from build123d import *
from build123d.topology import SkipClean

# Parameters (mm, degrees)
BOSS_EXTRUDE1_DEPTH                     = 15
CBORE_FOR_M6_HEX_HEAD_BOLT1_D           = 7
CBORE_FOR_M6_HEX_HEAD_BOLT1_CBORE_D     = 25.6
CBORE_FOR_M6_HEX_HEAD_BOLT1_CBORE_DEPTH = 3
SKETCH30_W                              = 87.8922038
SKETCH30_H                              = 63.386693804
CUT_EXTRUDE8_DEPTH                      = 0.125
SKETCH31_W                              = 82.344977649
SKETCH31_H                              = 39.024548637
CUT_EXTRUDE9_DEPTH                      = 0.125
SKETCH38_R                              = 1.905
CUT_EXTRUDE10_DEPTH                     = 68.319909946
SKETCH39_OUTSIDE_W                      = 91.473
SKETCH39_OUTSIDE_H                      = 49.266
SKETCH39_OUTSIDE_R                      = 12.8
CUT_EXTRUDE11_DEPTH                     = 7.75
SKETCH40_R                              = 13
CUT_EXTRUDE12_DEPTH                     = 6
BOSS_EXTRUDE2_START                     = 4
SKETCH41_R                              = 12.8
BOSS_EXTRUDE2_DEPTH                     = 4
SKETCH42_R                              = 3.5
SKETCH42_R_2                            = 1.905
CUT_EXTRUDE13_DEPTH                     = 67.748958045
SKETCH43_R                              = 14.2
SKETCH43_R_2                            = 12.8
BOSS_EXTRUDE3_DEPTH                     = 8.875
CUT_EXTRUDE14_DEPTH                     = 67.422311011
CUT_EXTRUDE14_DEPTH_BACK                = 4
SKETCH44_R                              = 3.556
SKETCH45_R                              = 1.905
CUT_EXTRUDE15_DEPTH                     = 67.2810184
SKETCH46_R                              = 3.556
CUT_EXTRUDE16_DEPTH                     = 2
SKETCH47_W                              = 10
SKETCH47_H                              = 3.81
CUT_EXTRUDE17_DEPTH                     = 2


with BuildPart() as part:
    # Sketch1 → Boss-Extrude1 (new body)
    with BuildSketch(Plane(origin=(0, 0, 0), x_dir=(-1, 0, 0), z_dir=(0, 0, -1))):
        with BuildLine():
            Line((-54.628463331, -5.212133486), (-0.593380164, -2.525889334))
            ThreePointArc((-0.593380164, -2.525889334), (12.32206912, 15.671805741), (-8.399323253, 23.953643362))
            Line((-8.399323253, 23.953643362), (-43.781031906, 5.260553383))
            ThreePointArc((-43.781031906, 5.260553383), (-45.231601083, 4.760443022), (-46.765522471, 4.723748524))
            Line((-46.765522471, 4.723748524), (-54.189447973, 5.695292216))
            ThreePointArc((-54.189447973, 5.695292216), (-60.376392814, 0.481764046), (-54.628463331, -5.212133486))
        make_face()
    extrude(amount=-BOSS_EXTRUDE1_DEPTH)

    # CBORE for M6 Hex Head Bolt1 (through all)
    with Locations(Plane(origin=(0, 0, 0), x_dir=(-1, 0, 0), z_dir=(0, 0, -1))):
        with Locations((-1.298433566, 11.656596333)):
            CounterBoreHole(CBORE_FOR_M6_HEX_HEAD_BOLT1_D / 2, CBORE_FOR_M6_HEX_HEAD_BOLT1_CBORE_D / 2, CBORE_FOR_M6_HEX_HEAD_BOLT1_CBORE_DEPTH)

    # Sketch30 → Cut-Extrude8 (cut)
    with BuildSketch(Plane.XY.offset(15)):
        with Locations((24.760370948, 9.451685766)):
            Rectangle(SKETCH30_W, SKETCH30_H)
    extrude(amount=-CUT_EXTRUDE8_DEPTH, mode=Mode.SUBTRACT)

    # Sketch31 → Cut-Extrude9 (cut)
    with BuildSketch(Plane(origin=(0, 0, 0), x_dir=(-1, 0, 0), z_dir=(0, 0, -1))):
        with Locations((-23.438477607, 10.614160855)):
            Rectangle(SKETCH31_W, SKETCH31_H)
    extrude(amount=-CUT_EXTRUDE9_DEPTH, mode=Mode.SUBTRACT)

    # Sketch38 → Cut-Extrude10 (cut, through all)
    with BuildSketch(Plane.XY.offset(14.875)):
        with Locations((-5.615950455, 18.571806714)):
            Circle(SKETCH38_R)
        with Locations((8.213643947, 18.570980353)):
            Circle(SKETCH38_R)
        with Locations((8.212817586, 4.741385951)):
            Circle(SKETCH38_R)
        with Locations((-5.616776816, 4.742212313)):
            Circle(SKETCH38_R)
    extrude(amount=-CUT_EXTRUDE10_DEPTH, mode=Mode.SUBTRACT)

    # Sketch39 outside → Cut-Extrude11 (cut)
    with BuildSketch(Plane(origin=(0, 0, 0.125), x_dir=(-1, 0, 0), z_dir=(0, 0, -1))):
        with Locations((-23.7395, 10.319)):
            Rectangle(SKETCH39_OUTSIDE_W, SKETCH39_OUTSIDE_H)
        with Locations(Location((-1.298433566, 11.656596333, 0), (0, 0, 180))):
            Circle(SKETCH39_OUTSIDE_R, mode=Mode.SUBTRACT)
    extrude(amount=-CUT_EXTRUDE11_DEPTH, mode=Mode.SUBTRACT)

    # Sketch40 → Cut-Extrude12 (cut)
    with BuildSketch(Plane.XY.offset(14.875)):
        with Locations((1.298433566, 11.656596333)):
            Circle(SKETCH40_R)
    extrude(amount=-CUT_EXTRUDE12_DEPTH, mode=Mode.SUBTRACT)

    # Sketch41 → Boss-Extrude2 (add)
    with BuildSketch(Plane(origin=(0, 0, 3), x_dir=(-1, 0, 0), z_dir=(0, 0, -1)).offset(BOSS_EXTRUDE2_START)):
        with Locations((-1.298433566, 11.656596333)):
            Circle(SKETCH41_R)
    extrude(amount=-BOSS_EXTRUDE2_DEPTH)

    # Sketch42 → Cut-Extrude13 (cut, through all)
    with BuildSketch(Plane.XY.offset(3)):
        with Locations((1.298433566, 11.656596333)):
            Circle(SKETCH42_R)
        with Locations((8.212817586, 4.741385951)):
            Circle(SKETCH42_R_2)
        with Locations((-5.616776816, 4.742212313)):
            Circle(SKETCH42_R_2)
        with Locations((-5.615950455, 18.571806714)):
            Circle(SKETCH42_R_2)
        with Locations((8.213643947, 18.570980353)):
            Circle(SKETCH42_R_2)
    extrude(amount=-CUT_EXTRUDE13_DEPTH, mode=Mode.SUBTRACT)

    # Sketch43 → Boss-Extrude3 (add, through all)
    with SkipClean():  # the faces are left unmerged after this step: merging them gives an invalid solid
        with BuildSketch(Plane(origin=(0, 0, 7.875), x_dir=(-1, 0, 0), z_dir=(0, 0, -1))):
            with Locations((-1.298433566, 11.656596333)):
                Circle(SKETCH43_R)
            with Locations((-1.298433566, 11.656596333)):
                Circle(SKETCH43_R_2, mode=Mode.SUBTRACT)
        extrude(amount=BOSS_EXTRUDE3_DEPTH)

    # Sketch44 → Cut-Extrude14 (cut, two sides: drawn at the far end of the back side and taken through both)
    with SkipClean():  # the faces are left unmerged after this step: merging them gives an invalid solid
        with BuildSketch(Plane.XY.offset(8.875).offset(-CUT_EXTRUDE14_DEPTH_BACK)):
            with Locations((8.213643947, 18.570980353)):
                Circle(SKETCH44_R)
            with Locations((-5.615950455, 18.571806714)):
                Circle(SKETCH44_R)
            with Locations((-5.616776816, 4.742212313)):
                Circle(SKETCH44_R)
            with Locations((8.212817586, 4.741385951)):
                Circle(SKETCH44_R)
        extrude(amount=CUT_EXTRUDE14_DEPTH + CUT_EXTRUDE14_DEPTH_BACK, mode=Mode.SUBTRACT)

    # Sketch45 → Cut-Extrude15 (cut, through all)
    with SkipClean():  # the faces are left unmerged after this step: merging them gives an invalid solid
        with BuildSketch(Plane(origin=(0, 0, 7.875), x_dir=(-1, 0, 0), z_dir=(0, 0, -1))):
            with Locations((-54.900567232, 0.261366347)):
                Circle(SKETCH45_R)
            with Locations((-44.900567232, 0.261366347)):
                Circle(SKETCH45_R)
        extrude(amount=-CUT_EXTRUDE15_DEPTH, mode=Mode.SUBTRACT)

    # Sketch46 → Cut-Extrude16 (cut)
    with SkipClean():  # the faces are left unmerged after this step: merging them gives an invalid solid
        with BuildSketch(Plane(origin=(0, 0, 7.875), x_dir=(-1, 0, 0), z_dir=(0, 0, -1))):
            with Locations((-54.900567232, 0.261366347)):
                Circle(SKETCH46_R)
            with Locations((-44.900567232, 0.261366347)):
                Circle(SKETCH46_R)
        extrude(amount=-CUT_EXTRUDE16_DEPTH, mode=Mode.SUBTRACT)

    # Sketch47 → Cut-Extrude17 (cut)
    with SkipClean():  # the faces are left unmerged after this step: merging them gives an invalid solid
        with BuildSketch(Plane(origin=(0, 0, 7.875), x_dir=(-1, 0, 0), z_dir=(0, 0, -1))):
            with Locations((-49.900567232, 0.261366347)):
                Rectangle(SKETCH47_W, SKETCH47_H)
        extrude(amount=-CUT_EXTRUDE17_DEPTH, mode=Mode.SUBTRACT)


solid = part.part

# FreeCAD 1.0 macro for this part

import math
import FreeCAD as App
import Part
import Sketcher

V = App.Vector


def add_polygon(sketch, points):
    """Adds a closed chain of lines whose ends are joined by coincident constraints."""
    first, n = sketch.GeometryCount, len(points)
    for a, b in zip(points, points[1:] + points[:1]):
        sketch.addGeometry(Part.LineSegment(App.Vector(*a, 0), App.Vector(*b, 0)), False)
    for i in range(n):
        sketch.addConstraint(Sketcher.Constraint("Coincident", first + i, 2, first + (i + 1) % n, 1))

doc = App.newDocument("Part")
params = doc.addObject("Spreadsheet::Sheet", "Params")
for row, (alias, value) in enumerate([
    ("sketch1_radius", "5 mm"),
    ("sketch1_radius2", "14.2 mm"),
    ("pad1_length", "15 mm"),
    ("sketch2_diameter", "7 mm"),
    ("hole_diameter", "7 mm"),
    ("hole_cbore_diameter", "25.6 mm"),
    ("hole_cbore_depth", "3 mm"),
    ("pocket1_length", "0.125 mm"),
    ("pocket2_length", "0.125 mm"),
    ("sketch5_diameter", "3.81 mm"),
    ("sketch6_diameter", "25.6 mm"),
    ("pocket4_length", "7.75 mm"),
    ("sketch7_diameter", "26 mm"),
    ("pocket5_length", "6 mm"),
    ("sketch8_diameter", "25.6 mm"),
    ("pad2_length", "4 mm"),
    ("sketch9_diameter", "7 mm"),
    ("sketch9_diameter2", "3.81 mm"),
    ("sketch10_diameter", "28.4 mm"),
    ("sketch10_diameter2", "25.6 mm"),
    ("pad3_length", "8.875 mm"),
    ("pocket7_length", "67.422311 mm"),
    ("pocket7_length2", "4 mm"),
    ("sketch12_diameter", "3.81 mm"),
    ("pocket9_length", "2 mm"),
    ("sketch14_width", "10 mm"),
    ("sketch14_height", "3.81 mm"),
    ("pocket10_length", "2 mm"),
], start=1):
    params.set(f"A{row}", alias)
    params.set(f"B{row}", "=" + value)
    params.setAlias(f"B{row}", alias)

body = doc.addObject("PartDesign::Body", "Body")

# Sketch on XY plane
sketch1 = body.newObject("Sketcher::SketchObject", "Sketch")
sketch1.AttachmentSupport = (doc.getObject("XY_Plane"), [""])
sketch1.MapMode = "FlatFace"
sketch1.addGeometry([
    Part.LineSegment(V(54.628463, -5.212133, 0), V(0.59338, -2.525889, 0)),  # 0
    Part.ArcOfCircle(Part.Circle(V(1.298434, 11.656596, 0), V(0, 0, 1), 14.2), math.radians(59.995855), math.radians(267.154)),  # 1
    Part.LineSegment(V(8.399323, 23.953643, 0), V(43.781032, 5.260553, 0)),  # 2
    Part.ArcOfCircle(Part.Circle(V(46.116722, 9.681476, 0), V(0, 0, 1), 5), math.radians(-117.848675), math.radians(-82.544267)),  # 3
    Part.LineSegment(V(46.765522, 4.723749, 0), V(54.189448, 5.695292, 0)),  # 4
    Part.ArcOfCircle(Part.Circle(V(54.900567, 0.261366, 0), V(0, 0, 1), 5.480259), math.radians(-92.846), math.radians(97.455733)),  # 5
], False)
sketch1.addConstraint([
    Sketcher.Constraint("Coincident", 0, 2, 1, 2),
    Sketcher.Constraint("Coincident", 1, 1, 2, 1),
    Sketcher.Constraint("Coincident", 2, 2, 3, 1),
    Sketcher.Constraint("Coincident", 3, 2, 4, 1),
    Sketcher.Constraint("Coincident", 4, 2, 5, 2),
    Sketcher.Constraint("Coincident", 5, 1, 0, 1),
    Sketcher.Constraint("Radius", 3, 5.0),
    Sketcher.Constraint("Radius", 1, 14.2),
    Sketcher.Constraint("Radius", 5, 5.480259),
    Sketcher.Constraint("DistanceX", 1, 1, 3, 3, 37.717398),
    Sketcher.Constraint("DistanceX", 1, 3, 2, 2, 42.482598),
    Sketcher.Constraint("DistanceX", 3, 3, 3, 2, 0.648801),
    Sketcher.Constraint("DistanceY", 5, 1, 5, 3, 5.4735),
    Sketcher.Constraint("Distance", 2, 40.016208),
    Sketcher.Constraint("DistanceX", -1, 1, 3, 3, 46.116722),
    Sketcher.Constraint("DistanceX", -1, 1, 0, 2, 0.59338),
    Sketcher.Constraint("DistanceY", 0, 2, -1, 1, 2.525889),
    Sketcher.Constraint("DistanceX", -1, 1, 2, 2, 43.781032),
    Sketcher.Constraint("DistanceY", 5, 3, 3, 3, 9.420109),
    Sketcher.Constraint("DistanceX", 4, 2, 5, 3, 0.711119),
    Sketcher.Constraint("DistanceX", 3, 2, 5, 1, 7.862941),
])
sketch1.setExpression("Constraints[6]", "Params.sketch1_radius")
sketch1.setExpression("Constraints[7]", "Params.sketch1_radius2")
pad1 = body.newObject("PartDesign::Pad", "Pad")
pad1.Profile = sketch1
pad1.setExpression("Length", "Params.pad1_length")

# Sketch on XY plane
sketch2 = body.newObject("Sketcher::SketchObject", "Sketch001")
sketch2.AttachmentSupport = (doc.getObject("XY_Plane"), [""])
sketch2.MapMode = "FlatFace"
sketch2.addGeometry(Part.Circle(V(1.3, 11.7, 0), V(0, 0, 1), 3.5), False)
sketch2.addConstraint([
    Sketcher.Constraint("Diameter", 0, 7.0),
    Sketcher.Constraint("DistanceX", -1, 1, 0, 3, 1.298434),
    Sketcher.Constraint("DistanceY", -1, 1, 0, 3, 11.656596),
])
sketch2.setExpression("Constraints[0]", "Params.sketch2_diameter")
doc.recompute()
hole = body.newObject("PartDesign::Hole", "Hole")
hole.Profile = sketch2
hole.ThreadType = "None"
hole.setExpression("Diameter", "Params.hole_diameter")
hole.DepthType = "ThroughAll"
hole.HoleCutType = "Counterbore"
hole.setExpression("HoleCutDiameter", "Params.hole_cbore_diameter")
hole.setExpression("HoleCutDepth", "Params.hole_cbore_depth")
hole.Reversed = True

# Sketch on XY plane
sketch3 = body.newObject("Sketcher::SketchObject", "Sketch002")
sketch3.AttachmentSupport = (doc.getObject("XY_Plane"), [""])
sketch3.MapMode = "FlatFace"
sketch3.AttachmentOffset = App.Placement(V(0, 0, 15), App.Rotation())
add_polygon(sketch3, [(-19, 41), (-19, -22), (69, -22), (69, 41)])  # lines 0-3
sketch3.addConstraint([
    Sketcher.Constraint("Vertical", 0),
    Sketcher.Constraint("Horizontal", 1),
    Sketcher.Constraint("Vertical", 2),
    Sketcher.Constraint("Horizontal", 3),
    Sketcher.Constraint("DistanceX", 1, 1, 1, 2, 87.892204),
    Sketcher.Constraint("DistanceY", 0, 2, 0, 1, 63.386694),
    Sketcher.Constraint("DistanceX", 0, 2, -1, 1, 19.185731),
    Sketcher.Constraint("DistanceY", 0, 2, -1, 1, 22.241661),
])
pocket1 = body.newObject("PartDesign::Pocket", "Pocket")
pocket1.Profile = sketch3
pocket1.setExpression("Length", "Params.pocket1_length")

# Sketch on XY plane
sketch4 = body.newObject("Sketcher::SketchObject", "Sketch003")
sketch4.AttachmentSupport = (doc.getObject("XY_Plane"), [""])
sketch4.MapMode = "FlatFace"
add_polygon(sketch4, [(65, 30), (65, -9), (-18, -9), (-18, 30)])  # lines 0-3
sketch4.addConstraint([
    Sketcher.Constraint("Vertical", 0),
    Sketcher.Constraint("Horizontal", 1),
    Sketcher.Constraint("Vertical", 2),
    Sketcher.Constraint("Horizontal", 3),
    Sketcher.Constraint("DistanceY", 0, 2, 0, 1, 39.024549),
    Sketcher.Constraint("DistanceX", 1, 2, 1, 1, 82.344978),
    Sketcher.Constraint("DistanceX", 1, 2, -1, 1, 17.734011),
    Sketcher.Constraint("DistanceY", 0, 2, -1, 1, 8.898113),
])
pocket2 = body.newObject("PartDesign::Pocket", "Pocket001")
pocket2.Profile = sketch4
pocket2.setExpression("Length", "Params.pocket2_length")
pocket2.Reversed = True

# Sketch on XY plane
sketch5 = body.newObject("Sketcher::SketchObject", "Sketch004")
sketch5.AttachmentSupport = (doc.getObject("XY_Plane"), [""])
sketch5.MapMode = "FlatFace"
sketch5.AttachmentOffset = App.Placement(V(0, 0, 14.875), App.Rotation())
sketch5.addGeometry([
    Part.Circle(V(-5.6, 18.6, 0), V(0, 0, 1), 1.9),
    Part.Circle(V(8.2, 18.6, 0), V(0, 0, 1), 1.9),
    Part.Circle(V(8.2, 4.7, 0), V(0, 0, 1), 1.9),
    Part.Circle(V(-5.6, 4.7, 0), V(0, 0, 1), 1.9),
], False)
sketch5.addConstraint([
    Sketcher.Constraint("Equal", 0, 1),
    Sketcher.Constraint("Equal", 1, 2),
    Sketcher.Constraint("Equal", 2, 3),
    Sketcher.Constraint("Diameter", 0, 3.81),
    Sketcher.Constraint("DistanceX", 0, 3, -1, 1, 5.61595),
    Sketcher.Constraint("DistanceY", -1, 1, 1, 3, 18.57098),
    Sketcher.Constraint("DistanceX", 0, 3, 2, 3, 13.828768),
    Sketcher.Constraint("DistanceY", 2, 3, 0, 3, 13.830421),
    Sketcher.Constraint("DistanceX", 3, 3, 1, 3, 13.830421),
    Sketcher.Constraint("DistanceY", 3, 3, 1, 3, 13.828768),
    Sketcher.Constraint("DistanceY", -1, 1, 0, 3, 18.571807),
    Sketcher.Constraint("DistanceX", -1, 1, 1, 3, 8.213644),
])
sketch5.setExpression("Constraints[3]", "Params.sketch5_diameter")
pocket3 = body.newObject("PartDesign::Pocket", "Pocket002")
pocket3.Profile = sketch5
pocket3.Type = "ThroughAll"

# Sketch on XY plane
sketch6 = body.newObject("Sketcher::SketchObject", "Sketch005")
sketch6.AttachmentSupport = (doc.getObject("XY_Plane"), [""])
sketch6.MapMode = "FlatFace"
sketch6.AttachmentOffset = App.Placement(V(0, 0, 0.125), App.Rotation())
add_polygon(sketch6, [(69, 35), (69, -14), (-22, -14), (-22, 35)])  # lines 0-3
sketch6.addGeometry(Part.Circle(V(1, 12, 0), V(0, 0, 1), 13), False)  # 4
sketch6.addConstraint([
    Sketcher.Constraint("Vertical", 0),
    Sketcher.Constraint("Horizontal", 1),
    Sketcher.Constraint("Vertical", 2),
    Sketcher.Constraint("Horizontal", 3),
    Sketcher.Constraint("Diameter", 4, 25.6),
    Sketcher.Constraint("DistanceX", 1, 2, 1, 1, 91.473),
    Sketcher.Constraint("DistanceY", 0, 2, 0, 1, 49.266),
    Sketcher.Constraint("DistanceX", -1, 1, 0, 2, 69.476),
    Sketcher.Constraint("DistanceY", 0, 2, -1, 1, 14.314),
    Sketcher.Constraint("DistanceX", -1, 1, 4, 3, 1.298434),
    Sketcher.Constraint("DistanceY", -1, 1, 4, 3, 11.656596),
])
sketch6.setExpression("Constraints[8]", "Params.sketch6_diameter")
pocket4 = body.newObject("PartDesign::Pocket", "Pocket003")
pocket4.Profile = sketch6
pocket4.setExpression("Length", "Params.pocket4_length")
pocket4.Reversed = True

# Sketch on XY plane
sketch7 = body.newObject("Sketcher::SketchObject", "Sketch006")
sketch7.AttachmentSupport = (doc.getObject("XY_Plane"), [""])
sketch7.MapMode = "FlatFace"
sketch7.AttachmentOffset = App.Placement(V(0, 0, 14.875), App.Rotation())
sketch7.addGeometry(Part.Circle(V(1, 12, 0), V(0, 0, 1), 13), False)
sketch7.addConstraint([
    Sketcher.Constraint("Diameter", 0, 26.0),
    Sketcher.Constraint("DistanceX", -1, 1, 0, 3, 1.298434),
    Sketcher.Constraint("DistanceY", -1, 1, 0, 3, 11.656596),
])
sketch7.setExpression("Constraints[0]", "Params.sketch7_diameter")
pocket5 = body.newObject("PartDesign::Pocket", "Pocket004")
pocket5.Profile = sketch7
pocket5.setExpression("Length", "Params.pocket5_length")

# Sketch on XY plane
sketch8 = body.newObject("Sketcher::SketchObject", "Sketch007")
sketch8.AttachmentSupport = (doc.getObject("XY_Plane"), [""])
sketch8.MapMode = "FlatFace"
sketch8.AttachmentOffset = App.Placement(V(0, 0, -1), App.Rotation())
sketch8.addGeometry(Part.Circle(V(1, 12, 0), V(0, 0, 1), 13), False)
sketch8.addConstraint([
    Sketcher.Constraint("Diameter", 0, 25.6),
    Sketcher.Constraint("DistanceX", -1, 1, 0, 3, 1.298434),
    Sketcher.Constraint("DistanceY", -1, 1, 0, 3, 11.656596),
])
sketch8.setExpression("Constraints[0]", "Params.sketch8_diameter")
pad2 = body.newObject("PartDesign::Pad", "Pad001")
pad2.Profile = sketch8
pad2.setExpression("Length", "Params.pad2_length")

# Sketch on XY plane
sketch9 = body.newObject("Sketcher::SketchObject", "Sketch008")
sketch9.AttachmentSupport = (doc.getObject("XY_Plane"), [""])
sketch9.MapMode = "FlatFace"
sketch9.AttachmentOffset = App.Placement(V(0, 0, 3), App.Rotation())
sketch9.addGeometry([
    Part.Circle(V(1.3, 11.7, 0), V(0, 0, 1), 3.5),  # 0
    Part.Circle(V(8.2, 4.7, 0), V(0, 0, 1), 1.9),  # 1
    Part.Circle(V(-5.6, 4.7, 0), V(0, 0, 1), 1.9),  # 2
    Part.Circle(V(-5.6, 18.6, 0), V(0, 0, 1), 1.9),  # 3
    Part.Circle(V(8.2, 18.6, 0), V(0, 0, 1), 1.9),  # 4
], False)
sketch9.addConstraint([
    Sketcher.Constraint("Equal", 1, 2),
    Sketcher.Constraint("Equal", 2, 3),
    Sketcher.Constraint("Equal", 3, 4),
    Sketcher.Constraint("Diameter", 0, 7.0),
    Sketcher.Constraint("Diameter", 1, 3.81),
    Sketcher.Constraint("DistanceX", 3, 3, -1, 1, 5.61595),
    Sketcher.Constraint("DistanceY", -1, 1, 4, 3, 18.57098),
    Sketcher.Constraint("DistanceY", 1, 3, 0, 3, 6.91521),
    Sketcher.Constraint("DistanceX", 2, 3, 0, 3, 6.91521),
    Sketcher.Constraint("DistanceY", 0, 3, 3, 3, 6.91521),
    Sketcher.Constraint("DistanceX", 3, 3, 1, 3, 13.828768),
    Sketcher.Constraint("DistanceX", 0, 3, 4, 3, 6.91521),
    Sketcher.Constraint("DistanceY", 2, 3, 4, 3, 13.828768),
    Sketcher.Constraint("DistanceX", -1, 1, 0, 3, 1.298434),
    Sketcher.Constraint("DistanceY", -1, 1, 0, 3, 11.656596),
])
sketch9.setExpression("Constraints[3]", "Params.sketch9_diameter")
sketch9.setExpression("Constraints[4]", "Params.sketch9_diameter2")
pocket6 = body.newObject("PartDesign::Pocket", "Pocket005")
pocket6.Profile = sketch9
pocket6.Type = "ThroughAll"

# Sketch on XY plane
sketch10 = body.newObject("Sketcher::SketchObject", "Sketch009")
sketch10.AttachmentSupport = (doc.getObject("XY_Plane"), [""])
sketch10.MapMode = "FlatFace"
sketch10.AttachmentOffset = App.Placement(V(0, 0, 7.875), App.Rotation())
sketch10.addGeometry([
    Part.Circle(V(1, 12, 0), V(0, 0, 1), 14),
    Part.Circle(V(1, 12, 0), V(0, 0, 1), 13),
], False)
sketch10.addConstraint([
    Sketcher.Constraint("Coincident", 1, 3, 0, 3),
    Sketcher.Constraint("Diameter", 0, 28.4),
    Sketcher.Constraint("Diameter", 1, 25.6),
    Sketcher.Constraint("DistanceX", -1, 1, 0, 3, 1.298434),
    Sketcher.Constraint("DistanceY", -1, 1, 0, 3, 11.656596),
])
sketch10.setExpression("Constraints[1]", "Params.sketch10_diameter")
sketch10.setExpression("Constraints[2]", "Params.sketch10_diameter2")
pad3 = body.newObject("PartDesign::Pad", "Pad002")
pad3.Profile = sketch10
pad3.setExpression("Length", "Params.pad3_length")
pad3.Reversed = True

# Sketch on XY plane
sketch11 = body.newObject("Sketcher::SketchObject", "Sketch010")
sketch11.AttachmentSupport = (doc.getObject("XY_Plane"), [""])
sketch11.MapMode = "FlatFace"
sketch11.AttachmentOffset = App.Placement(V(0, 0, 8.875), App.Rotation())
sketch11.addGeometry([
    Part.Circle(V(8.2, 18.6, 0), V(0, 0, 1), 3.6),
    Part.Circle(V(-5.6, 18.6, 0), V(0, 0, 1), 3.6),
    Part.Circle(V(-5.6, 4.7, 0), V(0, 0, 1), 3.6),
    Part.Circle(V(8.2, 4.7, 0), V(0, 0, 1), 3.6),
], False)
sketch11.addConstraint([
    Sketcher.Constraint("Equal", 0, 1),
    Sketcher.Constraint("Equal", 1, 2),
    Sketcher.Constraint("Equal", 2, 3),
    Sketcher.Constraint("Diameter", 0, 7.112),
    Sketcher.Constraint("DistanceY", -1, 1, 0, 3, 18.57098),
    Sketcher.Constraint("DistanceX", 1, 3, -1, 1, 5.61595),
    Sketcher.Constraint("DistanceX", 2, 3, 0, 3, 13.830421),
    Sketcher.Constraint("DistanceY", 2, 3, 0, 3, 13.828768),
    Sketcher.Constraint("DistanceX", 1, 3, 3, 3, 13.828768),
    Sketcher.Constraint("DistanceY", 3, 3, 1, 3, 13.830421),
    Sketcher.Constraint("DistanceX", -1, 1, 0, 3, 8.213644),
    Sketcher.Constraint("DistanceY", -1, 1, 1, 3, 18.571807),
])
pocket7 = body.newObject("PartDesign::Pocket", "Pocket006")
pocket7.Profile = sketch11
pocket7.Type = "TwoLengths"
pocket7.setExpression("Length", "Params.pocket7_length")
pocket7.setExpression("Length2", "Params.pocket7_length2")
pocket7.Reversed = True

# Sketch on XY plane
sketch12 = body.newObject("Sketcher::SketchObject", "Sketch011")
sketch12.AttachmentSupport = (doc.getObject("XY_Plane"), [""])
sketch12.MapMode = "FlatFace"
sketch12.AttachmentOffset = App.Placement(V(0, 0, 7.875), App.Rotation())
sketch12.addGeometry([
    Part.Circle(V(54.9, 0.3, 0), V(0, 0, 1), 1.9),
    Part.Circle(V(44.9, 0.3, 0), V(0, 0, 1), 1.9),
], False)
sketch12.addConstraint([
    Sketcher.Constraint("Equal", 0, 1),
    Sketcher.Constraint("Horizontal", 0, 3, 1, 3),
    Sketcher.Constraint("Diameter", 0, 3.81),
    Sketcher.Constraint("DistanceX", 1, 3, 0, 3, 10.0),
    Sketcher.Constraint("DistanceX", -1, 1, 0, 3, 54.900567),
    Sketcher.Constraint("DistanceY", -1, 1, 0, 3, 0.261366),
])
sketch12.setExpression("Constraints[2]", "Params.sketch12_diameter")
pocket8 = body.newObject("PartDesign::Pocket", "Pocket007")
pocket8.Profile = sketch12
pocket8.Type = "ThroughAll"
pocket8.Reversed = True

# Sketch on XY plane
sketch13 = body.newObject("Sketcher::SketchObject", "Sketch012")
sketch13.AttachmentSupport = (doc.getObject("XY_Plane"), [""])
sketch13.MapMode = "FlatFace"
sketch13.AttachmentOffset = App.Placement(V(0, 0, 7.875), App.Rotation())
sketch13.addGeometry([
    Part.Circle(V(54.9, 0.3, 0), V(0, 0, 1), 3.6),
    Part.Circle(V(44.9, 0.3, 0), V(0, 0, 1), 3.6),
], False)
sketch13.addConstraint([
    Sketcher.Constraint("Equal", 0, 1),
    Sketcher.Constraint("Horizontal", 0, 3, 1, 3),
    Sketcher.Constraint("Diameter", 0, 7.112),
    Sketcher.Constraint("DistanceX", 1, 3, 0, 3, 10.0),
    Sketcher.Constraint("DistanceX", -1, 1, 0, 3, 54.900567),
    Sketcher.Constraint("DistanceY", -1, 1, 0, 3, 0.261366),
])
pocket9 = body.newObject("PartDesign::Pocket", "Pocket008")
pocket9.Profile = sketch13
pocket9.setExpression("Length", "Params.pocket9_length")
pocket9.Reversed = True

# Sketch on XY plane
sketch14 = body.newObject("Sketcher::SketchObject", "Sketch013")
sketch14.AttachmentSupport = (doc.getObject("XY_Plane"), [""])
sketch14.MapMode = "FlatFace"
sketch14.AttachmentOffset = App.Placement(V(0, 0, 7.875), App.Rotation())
add_polygon(sketch14, [(54.9, 2.2), (54.9, -1.6), (44.9, -1.6), (44.9, 2.2)])  # lines 0-3
sketch14.addConstraint([
    Sketcher.Constraint("Vertical", 0),
    Sketcher.Constraint("Horizontal", 1),
    Sketcher.Constraint("Vertical", 2),
    Sketcher.Constraint("Horizontal", 3),
    Sketcher.Constraint("DistanceX", 1, 2, 1, 1, 10.0),
    Sketcher.Constraint("DistanceY", 0, 2, 0, 1, 3.81),
    Sketcher.Constraint("DistanceX", -1, 1, 0, 2, 54.900567),
    Sketcher.Constraint("DistanceY", 0, 2, -1, 1, 1.643634),
])
sketch14.setExpression("Constraints[8]", "Params.sketch14_width")
sketch14.setExpression("Constraints[9]", "Params.sketch14_height")
pocket10 = body.newObject("PartDesign::Pocket", "Pocket009")
pocket10.Profile = sketch14
pocket10.setExpression("Length", "Params.pocket10_length")
pocket10.Reversed = True

doc.recompute()
